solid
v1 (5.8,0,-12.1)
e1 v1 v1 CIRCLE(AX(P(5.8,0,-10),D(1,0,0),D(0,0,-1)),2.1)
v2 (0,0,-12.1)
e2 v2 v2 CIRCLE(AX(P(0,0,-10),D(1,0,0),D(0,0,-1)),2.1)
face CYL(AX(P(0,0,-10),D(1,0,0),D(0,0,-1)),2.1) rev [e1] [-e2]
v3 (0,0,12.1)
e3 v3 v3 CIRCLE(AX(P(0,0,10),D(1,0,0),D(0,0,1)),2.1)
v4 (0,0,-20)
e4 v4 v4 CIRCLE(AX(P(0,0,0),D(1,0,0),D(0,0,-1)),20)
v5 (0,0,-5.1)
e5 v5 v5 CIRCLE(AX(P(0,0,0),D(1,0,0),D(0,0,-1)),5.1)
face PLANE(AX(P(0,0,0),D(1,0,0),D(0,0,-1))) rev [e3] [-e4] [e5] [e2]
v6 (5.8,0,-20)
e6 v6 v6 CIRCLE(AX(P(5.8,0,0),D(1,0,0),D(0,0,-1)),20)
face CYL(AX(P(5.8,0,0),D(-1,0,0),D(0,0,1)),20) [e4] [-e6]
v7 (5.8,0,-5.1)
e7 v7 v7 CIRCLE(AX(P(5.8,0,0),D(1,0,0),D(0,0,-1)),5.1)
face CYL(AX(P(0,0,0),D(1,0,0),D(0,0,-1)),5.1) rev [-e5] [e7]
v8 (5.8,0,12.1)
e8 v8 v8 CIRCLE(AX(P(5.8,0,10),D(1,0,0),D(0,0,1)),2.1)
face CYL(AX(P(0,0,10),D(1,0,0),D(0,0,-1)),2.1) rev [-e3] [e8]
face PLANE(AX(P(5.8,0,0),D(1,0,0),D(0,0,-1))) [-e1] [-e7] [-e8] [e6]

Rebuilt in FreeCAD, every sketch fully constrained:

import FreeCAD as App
import Part
import Sketcher
Q = App.Units.Quantity

doc = App.newDocument("Part")
params = doc.addObject("Spreadsheet::Sheet", "Params")
for row, (alias, value) in enumerate([
    ("sketch1_diameter", "40 mm"),
    ("pad1_length", "5.8 mm"),
    ("sketch2_diameter", "4.2 mm"),
    ("sketch2_diameter2", "10.2 mm"),
], start=1):
    params.set(f"A{row}", alias)
    params.set(f"B{row}", "=" + value)
    params.setAlias(f"B{row}", alias)

body = doc.addObject("PartDesign::Body", "Body")

sketch1 = body.newObject("Sketcher::SketchObject", "Sketch")
sketch1.AttachmentSupport = (doc.getObject("YZ_Plane"), [""])
sketch1.MapMode = "FlatFace"
sketch1.addGeometry(Part.Circle(App.Vector(0, 0, 0), App.Vector(0, 0, 1), 20), False)
sketch1.addConstraint([
    Sketcher.Constraint("Coincident", 0, 3, -1, 1),
    Sketcher.Constraint("Diameter", 0, Q("40 mm")),
])
sketch1.setExpression("Constraints[1]", "Params.sketch1_diameter")
pad1 = body.newObject("PartDesign::Pad", "Pad")
pad1.Profile = sketch1
pad1.setExpression("Length", "Params.pad1_length")

sketch2 = body.newObject("Sketcher::SketchObject", "Sketch001")
sketch2.AttachmentSupport = (doc.getObject("YZ_Plane"), [""])
sketch2.MapMode = "FlatFace"
sketch2.AttachmentOffset = App.Placement(App.Vector(0, 0, 5.8), App.Rotation())
sketch2.addGeometry([
    Part.Circle(App.Vector(0, -10, 0), App.Vector(0, 0, 1), 2.1),
    Part.Circle(App.Vector(0, 10, 0), App.Vector(0, 0, 1), 2.1),
    Part.Circle(App.Vector(0, 0, 0), App.Vector(0, 0, 1), 5.1),
], False)
sketch2.addConstraint([
    Sketcher.Constraint("Coincident", 2, 3, -1, 1),
    Sketcher.Constraint("Equal", 0, 1),
    Sketcher.Constraint("Symmetric", 0, 3, 1, 3, -1, 1),
    Sketcher.Constraint("PointOnObject", 0, 3, -2),
    Sketcher.Constraint("Diameter", 0, Q("4.2 mm")),
    Sketcher.Constraint("Diameter", 2, Q("10.2 mm")),
    Sketcher.Constraint("DistanceY", 0, 3, -1, 1, Q("10 mm")),
])
sketch2.setExpression("Constraints[4]", "Params.sketch2_diameter")
sketch2.setExpression("Constraints[5]", "Params.sketch2_diameter2")
pocket1 = body.newObject("PartDesign::Pocket", "Pocket")
pocket1.Profile = sketch2
pocket1.Type = "ThroughAll"

doc.recompute()
